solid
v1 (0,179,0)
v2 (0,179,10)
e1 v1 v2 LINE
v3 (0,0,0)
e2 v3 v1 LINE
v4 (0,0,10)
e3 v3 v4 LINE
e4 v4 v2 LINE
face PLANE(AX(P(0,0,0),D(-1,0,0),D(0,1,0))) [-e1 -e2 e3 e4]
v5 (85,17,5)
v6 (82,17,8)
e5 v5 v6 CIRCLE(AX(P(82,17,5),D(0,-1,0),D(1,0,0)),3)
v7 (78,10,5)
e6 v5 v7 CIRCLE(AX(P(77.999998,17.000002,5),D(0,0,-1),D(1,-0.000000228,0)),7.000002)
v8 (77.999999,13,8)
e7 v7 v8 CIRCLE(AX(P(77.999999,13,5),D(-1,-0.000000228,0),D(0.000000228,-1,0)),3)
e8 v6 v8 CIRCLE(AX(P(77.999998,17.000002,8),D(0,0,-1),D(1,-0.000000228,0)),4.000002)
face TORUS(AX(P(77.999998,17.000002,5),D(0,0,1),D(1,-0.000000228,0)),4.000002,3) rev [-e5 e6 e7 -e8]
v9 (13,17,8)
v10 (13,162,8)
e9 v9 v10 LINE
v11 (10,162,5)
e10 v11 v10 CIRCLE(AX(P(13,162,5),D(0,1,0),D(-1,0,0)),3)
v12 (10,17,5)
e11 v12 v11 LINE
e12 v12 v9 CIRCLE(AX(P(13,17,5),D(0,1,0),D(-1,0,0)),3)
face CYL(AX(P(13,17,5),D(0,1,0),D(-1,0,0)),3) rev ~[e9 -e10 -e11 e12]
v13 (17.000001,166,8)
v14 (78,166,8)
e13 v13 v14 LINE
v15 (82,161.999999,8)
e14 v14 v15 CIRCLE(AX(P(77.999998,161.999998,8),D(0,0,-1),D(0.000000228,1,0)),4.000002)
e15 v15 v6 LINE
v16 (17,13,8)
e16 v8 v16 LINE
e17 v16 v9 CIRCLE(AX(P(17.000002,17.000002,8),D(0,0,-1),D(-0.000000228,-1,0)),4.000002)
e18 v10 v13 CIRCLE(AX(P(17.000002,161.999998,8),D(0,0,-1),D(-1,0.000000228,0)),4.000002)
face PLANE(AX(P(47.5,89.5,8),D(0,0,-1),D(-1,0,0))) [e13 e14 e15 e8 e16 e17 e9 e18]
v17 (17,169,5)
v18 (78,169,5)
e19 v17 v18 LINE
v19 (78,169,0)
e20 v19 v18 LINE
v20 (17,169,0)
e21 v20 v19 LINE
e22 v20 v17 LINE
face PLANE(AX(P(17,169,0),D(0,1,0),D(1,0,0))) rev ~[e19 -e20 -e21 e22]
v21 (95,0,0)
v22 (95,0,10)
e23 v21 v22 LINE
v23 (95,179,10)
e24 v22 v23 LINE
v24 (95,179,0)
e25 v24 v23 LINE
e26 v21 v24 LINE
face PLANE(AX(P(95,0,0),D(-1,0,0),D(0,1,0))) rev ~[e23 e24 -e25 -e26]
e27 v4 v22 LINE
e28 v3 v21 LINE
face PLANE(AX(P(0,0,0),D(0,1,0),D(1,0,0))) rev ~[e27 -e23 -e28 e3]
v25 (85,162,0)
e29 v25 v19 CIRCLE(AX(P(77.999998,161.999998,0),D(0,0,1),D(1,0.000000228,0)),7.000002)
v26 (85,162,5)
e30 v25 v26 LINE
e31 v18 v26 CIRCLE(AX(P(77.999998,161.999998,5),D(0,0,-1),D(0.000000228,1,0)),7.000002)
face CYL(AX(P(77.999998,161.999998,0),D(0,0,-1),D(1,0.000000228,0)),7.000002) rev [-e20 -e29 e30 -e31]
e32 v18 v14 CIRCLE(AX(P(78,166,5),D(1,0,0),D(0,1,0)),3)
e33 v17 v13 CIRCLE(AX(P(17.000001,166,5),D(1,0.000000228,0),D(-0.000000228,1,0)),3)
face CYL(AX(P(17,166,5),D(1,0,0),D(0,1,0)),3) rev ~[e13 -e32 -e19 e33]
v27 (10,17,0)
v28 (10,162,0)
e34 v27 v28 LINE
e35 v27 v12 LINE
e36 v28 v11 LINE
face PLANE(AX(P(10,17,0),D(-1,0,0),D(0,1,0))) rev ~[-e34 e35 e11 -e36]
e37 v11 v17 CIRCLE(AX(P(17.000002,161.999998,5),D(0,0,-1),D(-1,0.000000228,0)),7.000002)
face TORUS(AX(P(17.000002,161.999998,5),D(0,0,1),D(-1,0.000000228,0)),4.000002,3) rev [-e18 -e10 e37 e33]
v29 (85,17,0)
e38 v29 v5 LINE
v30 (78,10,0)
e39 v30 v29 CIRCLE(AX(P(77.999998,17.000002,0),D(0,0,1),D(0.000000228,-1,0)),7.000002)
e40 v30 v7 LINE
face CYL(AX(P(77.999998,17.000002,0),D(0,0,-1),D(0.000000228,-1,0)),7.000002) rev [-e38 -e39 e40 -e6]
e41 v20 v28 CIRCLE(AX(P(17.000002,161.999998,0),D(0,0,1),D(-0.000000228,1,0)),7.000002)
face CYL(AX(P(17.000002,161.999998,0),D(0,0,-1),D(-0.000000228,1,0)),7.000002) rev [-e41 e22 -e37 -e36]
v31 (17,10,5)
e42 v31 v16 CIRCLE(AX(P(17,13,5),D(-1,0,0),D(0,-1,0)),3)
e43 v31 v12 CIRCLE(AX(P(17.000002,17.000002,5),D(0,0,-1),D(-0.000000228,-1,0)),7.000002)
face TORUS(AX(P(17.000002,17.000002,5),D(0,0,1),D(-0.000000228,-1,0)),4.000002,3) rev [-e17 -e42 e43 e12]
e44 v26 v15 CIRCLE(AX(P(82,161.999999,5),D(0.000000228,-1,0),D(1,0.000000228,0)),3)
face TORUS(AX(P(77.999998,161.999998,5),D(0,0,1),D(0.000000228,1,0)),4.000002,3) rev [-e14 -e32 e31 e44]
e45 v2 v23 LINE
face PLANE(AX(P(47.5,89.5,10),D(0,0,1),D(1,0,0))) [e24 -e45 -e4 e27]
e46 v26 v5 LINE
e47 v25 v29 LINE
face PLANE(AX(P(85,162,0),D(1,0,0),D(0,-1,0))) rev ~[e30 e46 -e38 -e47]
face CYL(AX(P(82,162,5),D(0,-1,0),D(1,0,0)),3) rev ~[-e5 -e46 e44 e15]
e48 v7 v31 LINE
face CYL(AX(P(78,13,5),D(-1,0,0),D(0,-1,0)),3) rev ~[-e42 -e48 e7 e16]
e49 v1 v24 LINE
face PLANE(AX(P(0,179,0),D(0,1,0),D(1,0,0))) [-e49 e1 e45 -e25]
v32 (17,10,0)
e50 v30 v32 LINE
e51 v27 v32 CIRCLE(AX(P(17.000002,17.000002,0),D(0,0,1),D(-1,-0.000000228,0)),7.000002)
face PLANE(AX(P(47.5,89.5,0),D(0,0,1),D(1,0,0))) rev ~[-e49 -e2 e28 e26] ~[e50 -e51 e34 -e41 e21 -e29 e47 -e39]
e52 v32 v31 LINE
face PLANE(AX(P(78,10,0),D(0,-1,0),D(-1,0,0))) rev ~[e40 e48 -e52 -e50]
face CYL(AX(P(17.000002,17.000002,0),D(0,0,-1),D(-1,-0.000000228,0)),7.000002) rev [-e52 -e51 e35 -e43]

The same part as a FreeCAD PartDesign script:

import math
import FreeCAD as App
import Part
import Sketcher

V = App.Vector


def edges_at(feature, points):
    """Names of the edges that pass closest to the given points."""
    edges = feature.Shape.Edges
    near = lambda p: min(range(len(edges)), key=lambda i: edges[i].distToShape(Part.Vertex(*p))[0])
    return sorted({f"Edge{near(p) + 1}" for p in points})


def add_polygon(sketch, points):
    """Adds a closed chain of lines whose ends are joined by coincident constraints."""
    first, n = sketch.GeometryCount, len(points)
    for a, b in zip(points, points[1:] + points[:1]):
        sketch.addGeometry(Part.LineSegment(App.Vector(*a, 0), App.Vector(*b, 0)), False)
    for i in range(n):
        sketch.addConstraint(Sketcher.Constraint("Coincident", first + i, 2, first + (i + 1) % n, 1))

doc = App.newDocument("Part")
body = doc.addObject("PartDesign::Body", "Body")

# Sketch on XY plane
sketch1 = body.newObject("Sketcher::SketchObject", "Sketch")
sketch1.AttachmentSupport = (doc.getObject("XY_Plane"), [""])
sketch1.MapMode = "FlatFace"
add_polygon(sketch1, [(0, 179), (0, 0), (95, 0), (95, 179)])  # lines 0-3
sketch1.addConstraint([
    Sketcher.Constraint("Vertical", 0),
    Sketcher.Constraint("Horizontal", 1),
    Sketcher.Constraint("Vertical", 2),
    Sketcher.Constraint("Horizontal", 3),
    Sketcher.Constraint("Coincident", 0, 2, -1, 1),
    Sketcher.Constraint("DistanceX", 1, 1, 1, 2, 95.0),
    Sketcher.Constraint("DistanceY", 0, 2, 0, 1, 179.0),
])
pad1 = body.newObject("PartDesign::Pad", "Pad")
pad1.Profile = sketch1
pad1.Length = 10

# Sketch on XY plane
sketch2 = body.newObject("Sketcher::SketchObject", "Sketch001")
sketch2.AttachmentSupport = (doc.getObject("XY_Plane"), [""])
sketch2.MapMode = "FlatFace"
sketch2.addGeometry([
    Part.LineSegment(V(78, 169, 0), V(17, 169, 0)),  # 0
    Part.ArcOfCircle(Part.Circle(V(17, 162, 0), V(0, 0, 1), 7), math.radians(90), math.radians(180)),  # 1
    Part.LineSegment(V(10, 162, 0), V(10, 17, 0)),  # 2
    Part.ArcOfCircle(Part.Circle(V(17, 17, 0), V(0, 0, 1), 7), math.radians(-180), math.radians(-90)),  # 3
    Part.LineSegment(V(17, 10, 0), V(78, 10, 0)),  # 4
    Part.ArcOfCircle(Part.Circle(V(78, 17, 0), V(0, 0, 1), 7), math.radians(-90), math.radians(0)),  # 5
    Part.LineSegment(V(85, 17, 0), V(85, 162, 0)),  # 6
    Part.ArcOfCircle(Part.Circle(V(78, 162, 0), V(0, 0, 1), 7), math.radians(0), math.radians(90)),  # 7
], False)
sketch2.addConstraint([
    Sketcher.Constraint("Tangent", 0, 2, 1, 1),
    Sketcher.Constraint("Tangent", 1, 2, 2, 1),
    Sketcher.Constraint("Tangent", 2, 2, 3, 1),
    Sketcher.Constraint("Tangent", 3, 2, 4, 1),
    Sketcher.Constraint("Tangent", 4, 2, 5, 1),
    Sketcher.Constraint("Tangent", 5, 2, 6, 1),
    Sketcher.Constraint("Tangent", 6, 2, 7, 1),
    Sketcher.Constraint("Tangent", 7, 2, 0, 1),
    Sketcher.Constraint("Horizontal", 0),
    Sketcher.Constraint("Vertical", 2),
    Sketcher.Constraint("Horizontal", 4),
    Sketcher.Constraint("Vertical", 6),
    Sketcher.Constraint("Equal", 1, 3),
    Sketcher.Constraint("Equal", 3, 5),
    Sketcher.Constraint("Equal", 5, 7),
    Sketcher.Constraint("Radius", 1, 7.000002),
    Sketcher.Constraint("DistanceX", 0, 2, 0, 1, 61.0),
    Sketcher.Constraint("DistanceY", 2, 2, 2, 1, 145.0),
    Sketcher.Constraint("DistanceX", -1, 1, 1, 3, 17.000002),
    Sketcher.Constraint("DistanceY", -1, 1, 1, 3, 161.999998),
])
pocket1 = body.newObject("PartDesign::Pocket", "Pocket")
pocket1.Profile = sketch2
pocket1.Length = 8
pocket1.Reversed = True
doc.recompute()

fillet = body.newObject("PartDesign::Fillet", "Fillet")
fillet.Base = (pocket1, edges_at(pocket1, [(10, 89.5, 8)]))
fillet.Radius = 3

doc.recompute()
